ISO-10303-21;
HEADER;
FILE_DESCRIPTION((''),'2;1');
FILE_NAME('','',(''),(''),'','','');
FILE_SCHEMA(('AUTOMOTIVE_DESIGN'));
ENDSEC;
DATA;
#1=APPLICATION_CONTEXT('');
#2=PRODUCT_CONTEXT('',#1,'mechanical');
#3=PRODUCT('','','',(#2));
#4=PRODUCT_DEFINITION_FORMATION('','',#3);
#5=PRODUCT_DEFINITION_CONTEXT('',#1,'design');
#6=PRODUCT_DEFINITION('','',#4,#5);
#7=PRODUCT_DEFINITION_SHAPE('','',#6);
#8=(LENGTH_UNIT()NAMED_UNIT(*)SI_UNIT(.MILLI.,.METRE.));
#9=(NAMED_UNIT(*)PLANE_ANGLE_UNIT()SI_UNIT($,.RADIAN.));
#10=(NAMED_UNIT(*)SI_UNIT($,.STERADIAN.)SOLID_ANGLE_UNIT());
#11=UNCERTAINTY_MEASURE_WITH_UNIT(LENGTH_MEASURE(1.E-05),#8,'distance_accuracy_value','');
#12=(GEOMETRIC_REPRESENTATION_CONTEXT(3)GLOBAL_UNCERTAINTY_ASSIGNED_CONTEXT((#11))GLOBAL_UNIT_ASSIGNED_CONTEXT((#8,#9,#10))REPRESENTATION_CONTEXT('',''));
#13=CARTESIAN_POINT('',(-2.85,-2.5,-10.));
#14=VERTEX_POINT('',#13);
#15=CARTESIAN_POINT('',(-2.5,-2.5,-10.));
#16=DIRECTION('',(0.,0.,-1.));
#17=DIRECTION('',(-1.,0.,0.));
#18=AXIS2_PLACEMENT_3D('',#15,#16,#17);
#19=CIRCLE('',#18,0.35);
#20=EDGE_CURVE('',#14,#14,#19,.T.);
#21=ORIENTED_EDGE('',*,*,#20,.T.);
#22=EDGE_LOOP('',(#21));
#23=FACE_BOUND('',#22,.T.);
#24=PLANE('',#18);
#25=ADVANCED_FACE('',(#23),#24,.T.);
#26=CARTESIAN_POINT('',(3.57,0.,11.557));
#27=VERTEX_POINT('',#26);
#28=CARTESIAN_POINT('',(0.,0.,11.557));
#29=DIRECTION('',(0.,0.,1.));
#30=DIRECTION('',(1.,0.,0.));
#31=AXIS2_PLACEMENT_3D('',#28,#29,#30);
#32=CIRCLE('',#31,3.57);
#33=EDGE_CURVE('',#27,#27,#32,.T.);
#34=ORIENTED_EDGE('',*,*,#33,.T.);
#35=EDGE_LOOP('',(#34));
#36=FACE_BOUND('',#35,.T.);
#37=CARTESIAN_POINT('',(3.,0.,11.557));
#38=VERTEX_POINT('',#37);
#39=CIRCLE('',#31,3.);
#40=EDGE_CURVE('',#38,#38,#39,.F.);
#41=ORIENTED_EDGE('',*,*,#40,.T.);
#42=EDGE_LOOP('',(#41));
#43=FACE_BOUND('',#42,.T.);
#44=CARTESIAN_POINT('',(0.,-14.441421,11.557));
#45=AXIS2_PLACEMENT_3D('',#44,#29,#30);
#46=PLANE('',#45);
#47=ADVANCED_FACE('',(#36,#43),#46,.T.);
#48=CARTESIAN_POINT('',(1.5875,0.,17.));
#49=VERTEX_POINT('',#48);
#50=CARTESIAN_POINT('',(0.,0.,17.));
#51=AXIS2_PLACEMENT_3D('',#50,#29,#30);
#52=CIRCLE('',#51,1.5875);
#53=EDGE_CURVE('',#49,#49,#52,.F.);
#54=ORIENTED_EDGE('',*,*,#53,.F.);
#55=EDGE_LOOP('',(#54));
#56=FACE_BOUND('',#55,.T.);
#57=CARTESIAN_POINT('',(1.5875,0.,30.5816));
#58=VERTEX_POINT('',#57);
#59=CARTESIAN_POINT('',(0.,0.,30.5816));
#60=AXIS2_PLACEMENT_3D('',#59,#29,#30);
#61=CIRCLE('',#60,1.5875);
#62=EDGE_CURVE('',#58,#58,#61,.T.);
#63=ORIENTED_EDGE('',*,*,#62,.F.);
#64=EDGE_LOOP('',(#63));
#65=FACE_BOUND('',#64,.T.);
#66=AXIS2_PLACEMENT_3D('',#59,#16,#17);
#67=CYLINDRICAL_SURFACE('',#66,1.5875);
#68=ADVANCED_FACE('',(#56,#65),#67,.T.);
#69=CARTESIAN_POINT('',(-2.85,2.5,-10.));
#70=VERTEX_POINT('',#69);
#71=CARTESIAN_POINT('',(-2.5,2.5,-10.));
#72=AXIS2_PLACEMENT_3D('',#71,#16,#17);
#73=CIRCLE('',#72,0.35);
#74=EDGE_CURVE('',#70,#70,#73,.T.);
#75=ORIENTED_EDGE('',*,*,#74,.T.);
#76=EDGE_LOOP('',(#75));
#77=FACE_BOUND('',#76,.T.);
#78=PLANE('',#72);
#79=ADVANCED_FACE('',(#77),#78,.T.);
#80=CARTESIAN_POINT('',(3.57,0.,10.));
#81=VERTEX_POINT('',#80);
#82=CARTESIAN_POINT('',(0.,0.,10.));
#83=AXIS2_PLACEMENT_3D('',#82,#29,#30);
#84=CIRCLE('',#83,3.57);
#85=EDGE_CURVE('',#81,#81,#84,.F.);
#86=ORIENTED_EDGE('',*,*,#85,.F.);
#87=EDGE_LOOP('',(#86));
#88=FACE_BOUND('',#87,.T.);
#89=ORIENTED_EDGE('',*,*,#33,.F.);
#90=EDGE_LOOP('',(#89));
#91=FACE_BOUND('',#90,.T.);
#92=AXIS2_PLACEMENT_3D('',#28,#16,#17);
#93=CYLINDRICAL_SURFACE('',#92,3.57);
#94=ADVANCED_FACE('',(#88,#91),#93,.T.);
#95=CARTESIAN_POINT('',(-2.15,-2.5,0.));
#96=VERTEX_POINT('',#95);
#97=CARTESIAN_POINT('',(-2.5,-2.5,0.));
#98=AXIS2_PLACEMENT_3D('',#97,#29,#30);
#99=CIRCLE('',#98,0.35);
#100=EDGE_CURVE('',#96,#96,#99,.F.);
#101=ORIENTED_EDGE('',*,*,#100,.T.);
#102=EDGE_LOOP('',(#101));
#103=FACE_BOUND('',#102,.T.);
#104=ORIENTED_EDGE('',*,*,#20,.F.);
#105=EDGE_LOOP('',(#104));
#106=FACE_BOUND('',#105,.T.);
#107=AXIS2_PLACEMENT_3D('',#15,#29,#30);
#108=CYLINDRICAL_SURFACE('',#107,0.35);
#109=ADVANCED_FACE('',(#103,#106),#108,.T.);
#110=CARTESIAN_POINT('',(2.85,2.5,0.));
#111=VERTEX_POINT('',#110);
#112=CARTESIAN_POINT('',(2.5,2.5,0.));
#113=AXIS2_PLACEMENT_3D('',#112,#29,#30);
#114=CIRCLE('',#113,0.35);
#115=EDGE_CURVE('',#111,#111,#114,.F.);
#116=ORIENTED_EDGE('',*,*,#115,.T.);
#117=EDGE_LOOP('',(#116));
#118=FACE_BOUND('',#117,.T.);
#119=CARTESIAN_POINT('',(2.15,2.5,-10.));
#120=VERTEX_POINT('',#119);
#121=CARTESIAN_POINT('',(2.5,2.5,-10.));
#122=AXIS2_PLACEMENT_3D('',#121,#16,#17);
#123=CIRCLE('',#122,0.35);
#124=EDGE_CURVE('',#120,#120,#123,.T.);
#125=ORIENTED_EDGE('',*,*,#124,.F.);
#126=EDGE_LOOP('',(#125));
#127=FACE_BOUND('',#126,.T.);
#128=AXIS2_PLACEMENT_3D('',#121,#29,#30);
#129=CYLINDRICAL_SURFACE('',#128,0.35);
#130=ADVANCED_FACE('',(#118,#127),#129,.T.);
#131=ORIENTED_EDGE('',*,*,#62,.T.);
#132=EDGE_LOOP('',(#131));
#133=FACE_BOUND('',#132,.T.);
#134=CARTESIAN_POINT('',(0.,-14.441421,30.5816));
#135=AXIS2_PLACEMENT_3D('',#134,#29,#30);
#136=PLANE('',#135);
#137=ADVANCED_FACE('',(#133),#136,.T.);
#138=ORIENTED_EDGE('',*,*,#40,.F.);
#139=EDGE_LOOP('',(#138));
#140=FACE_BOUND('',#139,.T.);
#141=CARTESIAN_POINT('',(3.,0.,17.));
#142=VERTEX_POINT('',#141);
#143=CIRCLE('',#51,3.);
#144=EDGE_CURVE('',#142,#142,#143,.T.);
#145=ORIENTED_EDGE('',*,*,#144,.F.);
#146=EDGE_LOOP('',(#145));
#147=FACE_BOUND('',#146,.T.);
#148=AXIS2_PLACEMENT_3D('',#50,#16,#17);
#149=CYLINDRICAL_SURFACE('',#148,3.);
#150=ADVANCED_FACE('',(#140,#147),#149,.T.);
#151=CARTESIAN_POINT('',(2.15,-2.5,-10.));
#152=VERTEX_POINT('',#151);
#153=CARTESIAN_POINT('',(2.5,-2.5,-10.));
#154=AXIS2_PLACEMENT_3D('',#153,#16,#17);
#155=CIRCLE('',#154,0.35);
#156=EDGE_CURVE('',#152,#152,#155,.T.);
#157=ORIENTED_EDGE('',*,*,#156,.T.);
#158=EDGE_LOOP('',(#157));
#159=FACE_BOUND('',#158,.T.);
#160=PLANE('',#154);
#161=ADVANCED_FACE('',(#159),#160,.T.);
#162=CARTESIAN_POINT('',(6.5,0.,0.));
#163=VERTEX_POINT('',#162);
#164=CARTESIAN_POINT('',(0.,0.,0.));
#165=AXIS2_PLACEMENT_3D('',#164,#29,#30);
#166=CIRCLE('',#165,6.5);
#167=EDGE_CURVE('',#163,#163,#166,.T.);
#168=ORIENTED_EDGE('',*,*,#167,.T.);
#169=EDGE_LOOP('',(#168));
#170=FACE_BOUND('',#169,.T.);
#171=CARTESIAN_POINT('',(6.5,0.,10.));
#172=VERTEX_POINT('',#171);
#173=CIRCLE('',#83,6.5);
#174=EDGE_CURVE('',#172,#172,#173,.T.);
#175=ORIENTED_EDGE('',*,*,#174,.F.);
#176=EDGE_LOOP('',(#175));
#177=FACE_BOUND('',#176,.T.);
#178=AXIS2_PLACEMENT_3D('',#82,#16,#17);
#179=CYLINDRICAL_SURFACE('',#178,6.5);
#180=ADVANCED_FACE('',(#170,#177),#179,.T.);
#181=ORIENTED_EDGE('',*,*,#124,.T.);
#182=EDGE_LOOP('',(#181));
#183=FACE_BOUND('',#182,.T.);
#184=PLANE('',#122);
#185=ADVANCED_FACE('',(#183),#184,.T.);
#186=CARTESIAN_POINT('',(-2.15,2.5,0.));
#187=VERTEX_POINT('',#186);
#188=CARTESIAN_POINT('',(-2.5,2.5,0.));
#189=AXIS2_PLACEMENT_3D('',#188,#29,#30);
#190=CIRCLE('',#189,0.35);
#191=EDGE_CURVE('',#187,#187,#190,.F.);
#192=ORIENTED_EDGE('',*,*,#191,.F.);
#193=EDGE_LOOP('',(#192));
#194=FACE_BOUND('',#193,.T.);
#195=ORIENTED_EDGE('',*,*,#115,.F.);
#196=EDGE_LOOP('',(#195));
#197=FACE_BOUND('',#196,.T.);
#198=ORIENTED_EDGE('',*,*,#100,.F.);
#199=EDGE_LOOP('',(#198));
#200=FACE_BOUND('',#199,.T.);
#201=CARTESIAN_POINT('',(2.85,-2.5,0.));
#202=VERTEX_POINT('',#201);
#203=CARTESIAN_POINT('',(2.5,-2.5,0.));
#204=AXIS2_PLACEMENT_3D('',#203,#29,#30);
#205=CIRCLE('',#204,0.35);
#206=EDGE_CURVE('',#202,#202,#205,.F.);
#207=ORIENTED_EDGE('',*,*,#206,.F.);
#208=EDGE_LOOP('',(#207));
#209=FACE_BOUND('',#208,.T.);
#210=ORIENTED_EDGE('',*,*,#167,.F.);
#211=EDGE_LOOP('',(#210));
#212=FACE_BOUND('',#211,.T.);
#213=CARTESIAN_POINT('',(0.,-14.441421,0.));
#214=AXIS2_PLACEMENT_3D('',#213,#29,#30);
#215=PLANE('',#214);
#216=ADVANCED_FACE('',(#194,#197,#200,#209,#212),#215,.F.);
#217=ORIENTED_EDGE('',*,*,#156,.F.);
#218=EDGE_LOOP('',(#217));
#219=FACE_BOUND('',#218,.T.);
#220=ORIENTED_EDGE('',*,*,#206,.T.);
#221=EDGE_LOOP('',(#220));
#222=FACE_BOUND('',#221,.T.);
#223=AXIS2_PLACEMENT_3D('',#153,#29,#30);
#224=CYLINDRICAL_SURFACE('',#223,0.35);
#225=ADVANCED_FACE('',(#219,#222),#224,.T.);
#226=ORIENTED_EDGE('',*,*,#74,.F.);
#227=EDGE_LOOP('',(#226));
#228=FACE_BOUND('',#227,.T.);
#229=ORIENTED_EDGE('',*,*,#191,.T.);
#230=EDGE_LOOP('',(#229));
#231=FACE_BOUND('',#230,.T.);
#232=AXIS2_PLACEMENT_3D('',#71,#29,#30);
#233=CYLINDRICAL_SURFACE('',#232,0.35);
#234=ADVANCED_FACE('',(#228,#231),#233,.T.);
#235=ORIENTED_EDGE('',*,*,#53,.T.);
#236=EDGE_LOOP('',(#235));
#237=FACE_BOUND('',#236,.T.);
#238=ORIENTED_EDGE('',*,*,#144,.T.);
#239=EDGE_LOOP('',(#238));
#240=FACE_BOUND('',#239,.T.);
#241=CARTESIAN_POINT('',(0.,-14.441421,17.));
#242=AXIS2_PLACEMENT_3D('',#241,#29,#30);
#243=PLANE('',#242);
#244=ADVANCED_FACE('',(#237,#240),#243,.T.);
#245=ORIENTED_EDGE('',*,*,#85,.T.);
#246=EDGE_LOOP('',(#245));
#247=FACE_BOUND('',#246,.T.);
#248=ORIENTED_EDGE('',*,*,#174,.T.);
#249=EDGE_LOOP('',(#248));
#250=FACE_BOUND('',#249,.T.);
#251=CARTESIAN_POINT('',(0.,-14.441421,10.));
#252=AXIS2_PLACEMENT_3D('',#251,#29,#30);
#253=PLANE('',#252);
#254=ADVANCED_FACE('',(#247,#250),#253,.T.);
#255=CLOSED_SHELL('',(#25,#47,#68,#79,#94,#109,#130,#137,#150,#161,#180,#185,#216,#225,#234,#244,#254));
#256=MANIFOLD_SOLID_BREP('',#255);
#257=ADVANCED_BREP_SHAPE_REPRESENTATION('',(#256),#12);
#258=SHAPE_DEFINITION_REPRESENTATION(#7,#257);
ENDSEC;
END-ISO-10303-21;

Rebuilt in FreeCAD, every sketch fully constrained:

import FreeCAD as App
import Part
import Sketcher

V = App.Vector
Q = App.Units.Quantity

doc = App.newDocument("Part")
params = doc.addObject("Spreadsheet::Sheet", "Params")
for row, (alias, value) in enumerate([
    ("sketch1_diameter", "13 mm"),
    ("pad1_length", "10 mm"),
    ("sketch2_diameter", "7.14 mm"),
    ("pad2_length", "11.557 mm"),
    ("sketch3_diameter", "6 mm"),
    ("pad3_length", "17 mm"),
    ("pad4_length", "30.5816 mm"),
    ("sketch5_diameter", "0.7 mm"),
    ("pad5_length", "10 mm"),
], start=1):
    params.set(f"A{row}", alias)
    params.set(f"B{row}", "=" + value)
    params.setAlias(f"B{row}", alias)

body = doc.addObject("PartDesign::Body", "Body")

sketch1 = body.newObject("Sketcher::SketchObject", "Sketch")
sketch1.AttachmentSupport = (doc.getObject("XY_Plane"), [""])
sketch1.MapMode = "FlatFace"
sketch1.addGeometry(Part.Circle(V(0, 0, 0), V(0, 0, 1), 6), False)
sketch1.addConstraint([
    Sketcher.Constraint("Coincident", 0, 3, -1, 1),
    Sketcher.Constraint("Diameter", 0, Q("13 mm")),
])
sketch1.setExpression("Constraints[1]", "Params.sketch1_diameter")
pad1 = body.newObject("PartDesign::Pad", "Pad")
pad1.Profile = sketch1
pad1.setExpression("Length", "Params.pad1_length")

sketch2 = body.newObject("Sketcher::SketchObject", "Sketch001")
sketch2.AttachmentSupport = (doc.getObject("XY_Plane"), [""])
sketch2.MapMode = "FlatFace"
sketch2.addGeometry(Part.Circle(V(0, 0, 0), V(0, 0, 1), 3.6), False)
sketch2.addConstraint([
    Sketcher.Constraint("Coincident", 0, 3, -1, 1),
    Sketcher.Constraint("Diameter", 0, Q("7.14 mm")),
])
sketch2.setExpression("Constraints[1]", "Params.sketch2_diameter")
pad2 = body.newObject("PartDesign::Pad", "Pad001")
pad2.Profile = sketch2
pad2.setExpression("Length", "Params.pad2_length")

sketch3 = body.newObject("Sketcher::SketchObject", "Sketch002")
sketch3.AttachmentSupport = (doc.getObject("XY_Plane"), [""])
sketch3.MapMode = "FlatFace"
sketch3.addGeometry(Part.Circle(V(0, 0, 0), V(0, 0, 1), 3), False)
sketch3.addConstraint([
    Sketcher.Constraint("Coincident", 0, 3, -1, 1),
    Sketcher.Constraint("Diameter", 0, Q("6 mm")),
])
sketch3.setExpression("Constraints[1]", "Params.sketch3_diameter")
pad3 = body.newObject("PartDesign::Pad", "Pad002")
pad3.Profile = sketch3
pad3.setExpression("Length", "Params.pad3_length")

sketch4 = body.newObject("Sketcher::SketchObject", "Sketch003")
sketch4.AttachmentSupport = (doc.getObject("XY_Plane"), [""])
sketch4.MapMode = "FlatFace"
sketch4.addGeometry(Part.Circle(V(0, 0, 0), V(0, 0, 1), 1.6), False)
sketch4.addConstraint([
    Sketcher.Constraint("Coincident", 0, 3, -1, 1),
    Sketcher.Constraint("Diameter", 0, Q("3.175 mm")),
])
pad4 = body.newObject("PartDesign::Pad", "Pad003")
pad4.Profile = sketch4
pad4.setExpression("Length", "Params.pad4_length")

sketch5 = body.newObject("Sketcher::SketchObject", "Sketch004")
sketch5.AttachmentSupport = (doc.getObject("XY_Plane"), [""])
sketch5.MapMode = "FlatFace"
sketch5.addGeometry([
    Part.Circle(V(2.5, 2.5, 0), V(0, 0, 1), 0.35),
    Part.Circle(V(-2.5, 2.5, 0), V(0, 0, 1), 0.35),
    Part.Circle(V(-2.5, -2.5, 0), V(0, 0, 1), 0.35),
    Part.Circle(V(2.5, -2.5, 0), V(0, 0, 1), 0.35),
], False)
sketch5.addConstraint([
    Sketcher.Constraint("Equal", 0, 1),
    Sketcher.Constraint("Equal", 1, 2),
    Sketcher.Constraint("Equal", 2, 3),
    Sketcher.Constraint("Symmetric", 0, 3, 2, 3, -1, 1),
    Sketcher.Constraint("Symmetric", 1, 3, 3, 3, -1, 1),
    Sketcher.Constraint("Symmetric", 0, 3, 1, 3, -2),
    Sketcher.Constraint("Diameter", 0, Q("0.7 mm")),
    Sketcher.Constraint("DistanceX", 1, 3, 0, 3, Q("5 mm")),
    Sketcher.Constraint("DistanceY", 2, 3, 1, 3, Q("5 mm")),
])
sketch5.setExpression("Constraints[6]", "Params.sketch5_diameter")
pad5 = body.newObject("PartDesign::Pad", "Pad004")
pad5.Profile = sketch5
pad5.setExpression("Length", "Params.pad5_length")
pad5.Reversed = True

doc.recompute()
